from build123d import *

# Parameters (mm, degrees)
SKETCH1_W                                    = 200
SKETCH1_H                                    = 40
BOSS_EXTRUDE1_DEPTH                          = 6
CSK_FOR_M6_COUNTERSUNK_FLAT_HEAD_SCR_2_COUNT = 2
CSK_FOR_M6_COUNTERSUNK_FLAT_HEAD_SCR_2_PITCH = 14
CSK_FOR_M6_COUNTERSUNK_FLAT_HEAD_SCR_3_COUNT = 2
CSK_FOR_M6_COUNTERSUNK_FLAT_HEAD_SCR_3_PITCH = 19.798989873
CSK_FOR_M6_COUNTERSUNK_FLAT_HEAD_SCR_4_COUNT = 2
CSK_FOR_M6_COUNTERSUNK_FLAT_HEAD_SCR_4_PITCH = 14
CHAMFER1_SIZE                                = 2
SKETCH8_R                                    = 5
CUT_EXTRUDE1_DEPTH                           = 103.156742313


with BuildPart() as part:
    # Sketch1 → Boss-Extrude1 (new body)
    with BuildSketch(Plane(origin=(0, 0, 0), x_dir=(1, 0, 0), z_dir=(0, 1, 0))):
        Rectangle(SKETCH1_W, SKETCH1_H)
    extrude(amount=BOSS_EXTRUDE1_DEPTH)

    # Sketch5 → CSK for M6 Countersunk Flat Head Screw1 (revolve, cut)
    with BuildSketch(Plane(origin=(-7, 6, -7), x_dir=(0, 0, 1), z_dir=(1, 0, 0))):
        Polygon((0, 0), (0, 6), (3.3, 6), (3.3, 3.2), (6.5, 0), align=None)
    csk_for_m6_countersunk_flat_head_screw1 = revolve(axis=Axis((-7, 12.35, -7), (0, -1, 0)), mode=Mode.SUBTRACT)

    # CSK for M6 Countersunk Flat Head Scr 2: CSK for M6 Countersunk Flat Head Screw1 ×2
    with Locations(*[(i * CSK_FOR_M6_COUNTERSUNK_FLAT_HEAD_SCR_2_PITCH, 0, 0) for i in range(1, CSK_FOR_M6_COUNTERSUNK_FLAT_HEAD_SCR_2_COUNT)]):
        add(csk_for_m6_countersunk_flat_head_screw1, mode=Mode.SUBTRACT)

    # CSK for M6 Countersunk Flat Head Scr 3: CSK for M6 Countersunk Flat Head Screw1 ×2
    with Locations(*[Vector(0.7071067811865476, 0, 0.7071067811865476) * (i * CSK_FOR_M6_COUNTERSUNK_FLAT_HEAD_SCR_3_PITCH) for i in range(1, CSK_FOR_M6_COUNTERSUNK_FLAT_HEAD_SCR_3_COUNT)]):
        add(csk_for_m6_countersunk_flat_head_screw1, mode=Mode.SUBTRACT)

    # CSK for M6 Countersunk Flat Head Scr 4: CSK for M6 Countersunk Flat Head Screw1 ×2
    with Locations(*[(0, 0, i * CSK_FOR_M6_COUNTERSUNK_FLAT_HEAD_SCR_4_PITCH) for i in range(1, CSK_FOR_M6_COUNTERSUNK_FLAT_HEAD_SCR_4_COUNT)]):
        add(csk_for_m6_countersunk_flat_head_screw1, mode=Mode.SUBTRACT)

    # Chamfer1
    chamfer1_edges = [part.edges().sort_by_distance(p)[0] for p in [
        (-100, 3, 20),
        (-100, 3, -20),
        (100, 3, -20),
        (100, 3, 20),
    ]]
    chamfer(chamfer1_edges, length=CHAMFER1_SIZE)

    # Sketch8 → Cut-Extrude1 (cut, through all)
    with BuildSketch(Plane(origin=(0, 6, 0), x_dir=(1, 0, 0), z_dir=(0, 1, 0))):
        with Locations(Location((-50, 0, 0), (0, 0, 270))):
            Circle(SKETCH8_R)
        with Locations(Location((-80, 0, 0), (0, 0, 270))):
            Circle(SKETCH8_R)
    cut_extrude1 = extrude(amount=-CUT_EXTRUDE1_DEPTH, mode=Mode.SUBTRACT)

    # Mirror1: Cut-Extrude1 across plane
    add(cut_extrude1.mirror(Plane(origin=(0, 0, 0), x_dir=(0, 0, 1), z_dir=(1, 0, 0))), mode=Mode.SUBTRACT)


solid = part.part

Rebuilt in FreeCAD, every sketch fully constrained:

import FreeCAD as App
import Part
import Sketcher
from FreeCAD import Vector
Q = App.Units.Quantity


def edges_at(feature, points):
    """Names of the edges that pass closest to the given points."""
    edges = feature.Shape.Edges
    near = lambda p: min(range(len(edges)), key=lambda i: edges[i].distToShape(Part.Vertex(*p))[0])
    return sorted({f"Edge{near(p) + 1}" for p in points})

doc = App.newDocument("Part")
body = doc.addObject("PartDesign::Body", "Body")

sketch1 = body.newObject("Sketcher::SketchObject", "Sketch")
sketch1.AttachmentSupport = (doc.getObject("XZ_Plane"), [""])
sketch1.MapMode = "FlatFace"
sketch1.addGeometry([
    Part.LineSegment(Vector(-100, -20, 0), Vector(-100, 20, 0)),
    Part.LineSegment(Vector(-100, 20, 0), Vector(100, 20, 0)),
    Part.LineSegment(Vector(100, 20, 0), Vector(100, -20, 0)),
    Part.LineSegment(Vector(100, -20, 0), Vector(-100, -20, 0)),
], False)
sketch1.addConstraint([
    Sketcher.Constraint("Coincident", 0, 2, 1, 1),
    Sketcher.Constraint("Coincident", 1, 2, 2, 1),
    Sketcher.Constraint("Coincident", 2, 2, 3, 1),
    Sketcher.Constraint("Coincident", 3, 2, 0, 1),
    Sketcher.Constraint("Vertical", 0),
    Sketcher.Constraint("Horizontal", 1),
    Sketcher.Constraint("Vertical", 2),
    Sketcher.Constraint("Horizontal", 3),
    Sketcher.Constraint("Symmetric", 0, 2, 2, 2, -1, 1),
    Sketcher.Constraint("DistanceX", 1, 1, 1, 2, Q("200 mm")),
    Sketcher.Constraint("DistanceY", 0, 1, 0, 2, Q("40 mm")),
])
pad1 = body.newObject("PartDesign::Pad", "Pad")
pad1.Profile = sketch1
pad1.Length = 6
pad1.Reversed = True

sketch2 = body.newObject("Sketcher::SketchObject", "Sketch001")
sketch2.AttachmentSupport = (doc.getObject("YZ_Plane"), [""])
sketch2.MapMode = "FlatFace"
sketch2.AttachmentOffset = App.Placement(Vector(0, 0, -7), App.Rotation())
sketch2.addGeometry([
    Part.LineSegment(Vector(0, -7, 0), Vector(6, -7, 0)),
    Part.LineSegment(Vector(6, -7, 0), Vector(6, -0.5, 0)),
    Part.LineSegment(Vector(6, -0.5, 0), Vector(2.8, -3.7, 0)),
    Part.LineSegment(Vector(2.8, -3.7, 0), Vector(0, -3.7, 0)),
    Part.LineSegment(Vector(0, -3.7, 0), Vector(0, -7, 0)),
], False)
sketch2.addGeometry(Part.LineSegment(Vector(6, -7, 0), Vector(0, -7, 0)), True)
sketch2.addConstraint([
    Sketcher.Constraint("Coincident", 0, 2, 1, 1),
    Sketcher.Constraint("Coincident", 1, 2, 2, 1),
    Sketcher.Constraint("Coincident", 2, 2, 3, 1),
    Sketcher.Constraint("Coincident", 3, 2, 4, 1),
    Sketcher.Constraint("Coincident", 4, 2, 0, 1),
    Sketcher.Constraint("Horizontal", 0),
    Sketcher.Constraint("Vertical", 1),
    Sketcher.Constraint("Horizontal", 3),
    Sketcher.Constraint("Vertical", 4),
    Sketcher.Constraint("Horizontal", 5),
    Sketcher.Constraint("Coincident", 5, 1, 0, 2),
    Sketcher.Constraint("PointOnObject", 3, 2, -2),
    Sketcher.Constraint("PointOnObject", 5, 2, -2),
    Sketcher.Constraint("DistanceX", 0, 1, 0, 2, Q("6 mm")),
    Sketcher.Constraint("Angle", 2, Q("-135 deg")),
    Sketcher.Constraint("DistanceX", 3, 2, 3, 1, Q("2.8 mm")),
    Sketcher.Constraint("DistanceY", 1, 1, 1, 2, Q("6.5 mm")),
    Sketcher.Constraint("DistanceY", 0, 2, -1, 1, Q("7 mm")),
])
groove = body.newObject("PartDesign::Groove", "Groove")
groove.Profile = sketch2
groove.ReferenceAxis = (sketch2, ["Axis0"])
groove.Angle = 360
doc.recompute()

linearpattern = body.newObject("PartDesign::LinearPattern", "LinearPattern")
linearpattern.Originals = [groove]
linearpattern.Direction = (doc.getObject("X_Axis"), [""])
linearpattern.Mode = "offset"
linearpattern.Offset = 14
linearpattern.Occurrences = 2
body.Tip = linearpattern
doc.recompute()

datumline = body.newObject("PartDesign::Line", "DatumLine")
datumline.Placement = App.Placement(Vector(0, 0, 0), App.Rotation(Vector(0, 0, 1), Vector(0.707106781, 0, 0.707106781)))
linearpattern2 = body.newObject("PartDesign::LinearPattern", "LinearPattern001")
linearpattern2.Originals = [groove]
linearpattern2.Direction = (datumline, [""])
linearpattern2.Mode = "offset"
linearpattern2.Offset = 19.79899
linearpattern2.Occurrences = 2
body.Tip = linearpattern2
doc.recompute()

linearpattern3 = body.newObject("PartDesign::LinearPattern", "LinearPattern002")
linearpattern3.Originals = [groove]
linearpattern3.Direction = (doc.getObject("Z_Axis"), [""])
linearpattern3.Mode = "offset"
linearpattern3.Offset = 14
linearpattern3.Occurrences = 2
body.Tip = linearpattern3
doc.recompute()

chamfer = body.newObject("PartDesign::Chamfer", "Chamfer")
chamfer.Base = (linearpattern3, edges_at(linearpattern3, [
    (-100, 3, 20),
    (-100, 3, -20),
    (100, 3, -20),
    (100, 3, 20),
]))
chamfer.Size = 2

sketch3 = body.newObject("Sketcher::SketchObject", "Sketch002")
sketch3.AttachmentSupport = (doc.getObject("XZ_Plane"), [""])
sketch3.MapMode = "FlatFace"
sketch3.AttachmentOffset = App.Placement(Vector(0, 0, -6), App.Rotation())
sketch3.addGeometry([
    Part.Circle(Vector(-50, 0, 0), Vector(0, 0, 1), 5),
    Part.Circle(Vector(-80, 0, 0), Vector(0, 0, 1), 5),
], False)
sketch3.addConstraint([
    Sketcher.Constraint("Equal", 0, 1),
    Sketcher.Constraint("PointOnObject", 0, 3, -1),
    Sketcher.Constraint("PointOnObject", 1, 3, -1),
    Sketcher.Constraint("Diameter", 0, Q("10 mm")),
    Sketcher.Constraint("DistanceX", 0, 3, -1, 1, Q("50 mm")),
    Sketcher.Constraint("DistanceX", 1, 3, -1, 1, Q("80 mm")),
])
pocket1 = body.newObject("PartDesign::Pocket", "Pocket")
pocket1.Profile = sketch3
pocket1.Type = "ThroughAll"
pocket1.Reversed = True
doc.recompute()

mirrored = body.newObject("PartDesign::Mirrored", "Mirrored")
mirrored.Originals = [pocket1]
mirrored.MirrorPlane = (doc.getObject("YZ_Plane"), [""])
body.Tip = mirrored

doc.recompute()
